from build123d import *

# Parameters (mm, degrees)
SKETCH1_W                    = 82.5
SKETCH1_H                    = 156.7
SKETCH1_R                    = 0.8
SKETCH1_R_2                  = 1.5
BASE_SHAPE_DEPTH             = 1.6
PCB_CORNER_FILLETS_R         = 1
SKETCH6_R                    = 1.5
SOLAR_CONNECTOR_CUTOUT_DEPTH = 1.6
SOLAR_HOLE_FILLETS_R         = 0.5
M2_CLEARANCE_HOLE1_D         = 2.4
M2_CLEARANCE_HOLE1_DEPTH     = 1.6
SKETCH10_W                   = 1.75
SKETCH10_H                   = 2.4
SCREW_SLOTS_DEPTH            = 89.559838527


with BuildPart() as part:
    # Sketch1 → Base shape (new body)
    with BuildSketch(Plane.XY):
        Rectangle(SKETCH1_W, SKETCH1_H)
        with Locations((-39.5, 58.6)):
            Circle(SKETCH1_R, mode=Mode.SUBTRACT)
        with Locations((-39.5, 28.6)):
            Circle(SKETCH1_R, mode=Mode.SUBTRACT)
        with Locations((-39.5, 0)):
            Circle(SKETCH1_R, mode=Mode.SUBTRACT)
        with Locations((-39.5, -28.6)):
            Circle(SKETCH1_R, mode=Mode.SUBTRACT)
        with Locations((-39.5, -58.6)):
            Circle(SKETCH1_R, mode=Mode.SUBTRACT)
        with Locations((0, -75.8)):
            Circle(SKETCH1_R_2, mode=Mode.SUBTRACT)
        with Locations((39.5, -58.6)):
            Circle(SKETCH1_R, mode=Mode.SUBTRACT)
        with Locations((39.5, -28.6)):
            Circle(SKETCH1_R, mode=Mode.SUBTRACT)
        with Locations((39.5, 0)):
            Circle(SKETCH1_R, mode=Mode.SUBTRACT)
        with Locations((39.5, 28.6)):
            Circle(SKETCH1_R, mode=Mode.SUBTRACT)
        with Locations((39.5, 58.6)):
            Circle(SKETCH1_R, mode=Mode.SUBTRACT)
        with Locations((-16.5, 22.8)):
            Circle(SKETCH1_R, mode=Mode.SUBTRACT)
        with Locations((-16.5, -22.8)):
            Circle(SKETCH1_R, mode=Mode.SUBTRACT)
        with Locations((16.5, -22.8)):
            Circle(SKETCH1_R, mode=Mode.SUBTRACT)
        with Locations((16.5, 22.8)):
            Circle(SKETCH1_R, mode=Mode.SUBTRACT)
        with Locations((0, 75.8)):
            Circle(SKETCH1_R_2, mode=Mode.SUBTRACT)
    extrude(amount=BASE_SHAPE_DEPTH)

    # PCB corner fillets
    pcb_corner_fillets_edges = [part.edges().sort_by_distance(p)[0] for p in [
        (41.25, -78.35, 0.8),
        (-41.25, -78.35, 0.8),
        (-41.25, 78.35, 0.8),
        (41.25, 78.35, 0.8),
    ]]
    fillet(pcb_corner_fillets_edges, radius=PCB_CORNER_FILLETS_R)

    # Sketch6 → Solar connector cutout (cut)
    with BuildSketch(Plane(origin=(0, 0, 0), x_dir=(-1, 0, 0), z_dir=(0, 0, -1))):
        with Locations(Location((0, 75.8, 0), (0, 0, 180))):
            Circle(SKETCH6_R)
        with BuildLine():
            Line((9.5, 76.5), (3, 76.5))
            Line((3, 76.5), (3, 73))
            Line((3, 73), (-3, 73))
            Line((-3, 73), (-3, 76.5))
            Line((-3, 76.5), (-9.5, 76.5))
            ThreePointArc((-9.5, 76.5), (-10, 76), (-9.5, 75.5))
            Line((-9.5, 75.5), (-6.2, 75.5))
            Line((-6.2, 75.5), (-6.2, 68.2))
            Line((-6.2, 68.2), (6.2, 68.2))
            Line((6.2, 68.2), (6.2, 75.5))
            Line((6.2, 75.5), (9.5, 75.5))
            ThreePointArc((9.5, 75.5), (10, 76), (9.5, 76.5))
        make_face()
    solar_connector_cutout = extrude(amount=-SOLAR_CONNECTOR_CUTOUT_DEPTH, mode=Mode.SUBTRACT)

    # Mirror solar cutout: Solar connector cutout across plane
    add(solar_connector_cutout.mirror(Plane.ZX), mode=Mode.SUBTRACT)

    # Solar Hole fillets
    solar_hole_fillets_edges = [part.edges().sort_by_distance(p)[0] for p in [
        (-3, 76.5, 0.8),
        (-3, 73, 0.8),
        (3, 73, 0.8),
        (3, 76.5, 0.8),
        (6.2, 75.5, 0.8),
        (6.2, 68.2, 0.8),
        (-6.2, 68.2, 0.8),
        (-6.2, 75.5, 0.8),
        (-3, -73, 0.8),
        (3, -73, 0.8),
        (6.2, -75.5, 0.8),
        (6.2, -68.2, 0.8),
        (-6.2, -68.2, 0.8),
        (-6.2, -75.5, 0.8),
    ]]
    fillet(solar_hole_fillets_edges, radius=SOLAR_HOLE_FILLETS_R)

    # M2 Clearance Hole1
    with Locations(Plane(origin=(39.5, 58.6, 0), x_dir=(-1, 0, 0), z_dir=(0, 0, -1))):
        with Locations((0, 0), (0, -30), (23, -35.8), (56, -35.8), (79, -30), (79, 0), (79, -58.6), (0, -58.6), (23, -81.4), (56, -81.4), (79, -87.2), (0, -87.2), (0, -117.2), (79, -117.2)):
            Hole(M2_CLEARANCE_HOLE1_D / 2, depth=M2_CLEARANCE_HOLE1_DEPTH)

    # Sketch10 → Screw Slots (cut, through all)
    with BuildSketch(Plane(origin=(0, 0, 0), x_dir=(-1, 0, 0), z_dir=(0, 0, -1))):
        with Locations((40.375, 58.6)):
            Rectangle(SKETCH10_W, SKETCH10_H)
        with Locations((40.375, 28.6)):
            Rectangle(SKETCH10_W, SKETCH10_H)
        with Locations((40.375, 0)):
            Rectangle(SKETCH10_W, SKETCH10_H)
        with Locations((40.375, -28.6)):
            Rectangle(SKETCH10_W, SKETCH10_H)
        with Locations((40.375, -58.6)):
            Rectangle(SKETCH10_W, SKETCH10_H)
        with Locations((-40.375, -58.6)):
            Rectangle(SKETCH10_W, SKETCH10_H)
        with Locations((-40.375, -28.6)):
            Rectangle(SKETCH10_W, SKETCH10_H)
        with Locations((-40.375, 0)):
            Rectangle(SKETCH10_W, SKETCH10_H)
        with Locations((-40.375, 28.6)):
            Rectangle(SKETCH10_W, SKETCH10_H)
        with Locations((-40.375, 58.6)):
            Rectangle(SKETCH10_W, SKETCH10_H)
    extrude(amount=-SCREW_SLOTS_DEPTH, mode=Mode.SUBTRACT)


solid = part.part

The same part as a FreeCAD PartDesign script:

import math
import FreeCAD as App
import Part
import Sketcher

V = App.Vector


def edges_at(feature, points):
    """Names of the edges that pass closest to the given points."""
    edges = feature.Shape.Edges
    near = lambda p: min(range(len(edges)), key=lambda i: edges[i].distToShape(Part.Vertex(*p))[0])
    return sorted({f"Edge{near(p) + 1}" for p in points})


def add_polygon(sketch, points):
    """Adds a closed chain of lines whose ends are joined by coincident constraints."""
    first, n = sketch.GeometryCount, len(points)
    for a, b in zip(points, points[1:] + points[:1]):
        sketch.addGeometry(Part.LineSegment(App.Vector(*a, 0), App.Vector(*b, 0)), False)
    for i in range(n):
        sketch.addConstraint(Sketcher.Constraint("Coincident", first + i, 2, first + (i + 1) % n, 1))

doc = App.newDocument("Part")
body = doc.addObject("PartDesign::Body", "Body")

# Sketch on XY plane
sketch1 = body.newObject("Sketcher::SketchObject", "Sketch")
sketch1.AttachmentSupport = (doc.getObject("XY_Plane"), [""])
sketch1.MapMode = "FlatFace"
add_polygon(sketch1, [(-41.2, 78.3), (-41.2, -78.3), (41.2, -78.3), (41.2, 78.3)])  # lines 0-3
sketch1.addGeometry(Part.Circle(V(-39.5, -58.6, 0), V(0, 0, 1), 0.8), False)  # 4
sketch1.addGeometry(Part.Circle(V(-39.5, -28.6, 0), V(0, 0, 1), 0.8), False)  # 5
sketch1.addGeometry(Part.Circle(V(-16.5, -22.8, 0), V(0, 0, 1), 0.8), False)  # 6
sketch1.addGeometry(Part.Circle(V(0, -75.8, 0), V(0, 0, 1), 1.5), False)  # 7
sketch1.addGeometry(Part.Circle(V(39.5, -58.6, 0), V(0, 0, 1), 0.8), False)  # 8
sketch1.addGeometry(Part.Circle(V(16.5, -22.8, 0), V(0, 0, 1), 0.8), False)  # 9
sketch1.addGeometry(Part.Circle(V(39.5, -28.6, 0), V(0, 0, 1), 0.8), False)  # 10
sketch1.addGeometry(Part.Circle(V(-39.5, 0, 0), V(0, 0, 1), 0.8), False)  # 11
sketch1.addGeometry(Part.Circle(V(-39.5, 28.6, 0), V(0, 0, 1), 0.8), False)  # 12
sketch1.addGeometry(Part.Circle(V(-16.5, 22.8, 0), V(0, 0, 1), 0.8), False)  # 13
sketch1.addGeometry(Part.Circle(V(-39.5, 58.6, 0), V(0, 0, 1), 0.8), False)  # 14
sketch1.addGeometry(Part.Circle(V(16.5, 22.8, 0), V(0, 0, 1), 0.8), False)  # 15
sketch1.addGeometry(Part.Circle(V(39.5, 0, 0), V(0, 0, 1), 0.8), False)  # 16
sketch1.addGeometry(Part.Circle(V(39.5, 28.6, 0), V(0, 0, 1), 0.8), False)  # 17
sketch1.addGeometry(Part.Circle(V(0, 75.8, 0), V(0, 0, 1), 1.5), False)  # 18
sketch1.addGeometry(Part.Circle(V(39.5, 58.6, 0), V(0, 0, 1), 0.8), False)  # 19
sketch1.addConstraint([
    Sketcher.Constraint("Vertical", 0),
    Sketcher.Constraint("Horizontal", 1),
    Sketcher.Constraint("Vertical", 2),
    Sketcher.Constraint("Horizontal", 3),
    Sketcher.Constraint("Equal", 4, 5),
    Sketcher.Constraint("Equal", 5, 6),
    Sketcher.Constraint("Equal", 6, 8),
    Sketcher.Constraint("Equal", 8, 9),
    Sketcher.Constraint("Equal", 9, 10),
    Sketcher.Constraint("Equal", 10, 11),
    Sketcher.Constraint("Equal", 11, 12),
    Sketcher.Constraint("Equal", 12, 13),
    Sketcher.Constraint("Equal", 13, 14),
    Sketcher.Constraint("Equal", 14, 15),
    Sketcher.Constraint("Equal", 15, 16),
    Sketcher.Constraint("Equal", 16, 17),
    Sketcher.Constraint("Equal", 7, 18),
    Sketcher.Constraint("Equal", 17, 19),
    Sketcher.Constraint("Symmetric", 10, 3, 12, 3, -1, 1),
    Sketcher.Constraint("Symmetric", 9, 3, 13, 3, -1, 1),
    Sketcher.Constraint("Symmetric", 8, 3, 14, 3, -1, 1),
    Sketcher.Constraint("Symmetric", 6, 3, 15, 3, -1, 1),
    Sketcher.Constraint("Symmetric", 11, 3, 16, 3, -1, 1),
    Sketcher.Constraint("Symmetric", 5, 3, 17, 3, -1, 1),
    Sketcher.Constraint("Symmetric", 7, 3, 18, 3, -1, 1),
    Sketcher.Constraint("Symmetric", 4, 3, 19, 3, -1, 1),
    Sketcher.Constraint("Symmetric", 0, 2, 2, 2, -1, 1),
    Sketcher.Constraint("Symmetric", 4, 3, 8, 3, -2),
    Sketcher.Constraint("Symmetric", 6, 3, 9, 3, -2),
    Sketcher.Constraint("Symmetric", 5, 3, 10, 3, -2),
    Sketcher.Constraint("PointOnObject", 7, 3, -2),
    Sketcher.Constraint("PointOnObject", 11, 3, -1),
    Sketcher.Constraint("Vertical", 4, 3, 5, 3),
    Sketcher.Constraint("Vertical", 5, 3, 11, 3),
    Sketcher.Constraint("Diameter", 7, 3.0),
    Sketcher.Constraint("Diameter", 4, 1.6),
    Sketcher.Constraint("DistanceX", 1, 1, 1, 2, 82.5),
    Sketcher.Constraint("DistanceY", 0, 2, 0, 1, 156.7),
    Sketcher.Constraint("DistanceY", 4, 3, 5, 3, 30.0),
    Sketcher.Constraint("DistanceX", 5, 3, 6, 3, 23.0),
    Sketcher.Constraint("DistanceY", 7, 3, 6, 3, 53.0),
    Sketcher.Constraint("DistanceX", 6, 3, 8, 3, 56.0),
    Sketcher.Constraint("DistanceY", 4, 3, -1, 1, 58.6),
    Sketcher.Constraint("DistanceY", 6, 3, -1, 1, 22.8),
])
pad1 = body.newObject("PartDesign::Pad", "Pad")
pad1.Profile = sketch1
pad1.Length = 1.6
doc.recompute()

fillet = body.newObject("PartDesign::Fillet", "Fillet")
fillet.Base = (pad1, edges_at(pad1, [
    (41.25, -78.35, 0.8),
    (-41.25, -78.35, 0.8),
    (-41.25, 78.35, 0.8),
    (41.25, 78.35, 0.8),
]))
fillet.Radius = 1

# Sketch on XY plane
sketch2 = body.newObject("Sketcher::SketchObject", "Sketch001")
sketch2.AttachmentSupport = (doc.getObject("XY_Plane"), [""])
sketch2.MapMode = "FlatFace"
sketch2.addGeometry([
    Part.Circle(V(0, 75.8, 0), V(0, 0, 1), 1.5),  # 0
    Part.LineSegment(V(-9.5, 76.5, 0), V(-3, 76.5, 0)),  # 1
    Part.LineSegment(V(-3, 76.5, 0), V(-3, 73, 0)),  # 2
    Part.LineSegment(V(-3, 73, 0), V(3, 73, 0)),  # 3
    Part.LineSegment(V(3, 73, 0), V(3, 76.5, 0)),  # 4
    Part.LineSegment(V(3, 76.5, 0), V(9.5, 76.5, 0)),  # 5
    Part.ArcOfCircle(Part.Circle(V(9.5, 76, 0), V(0, 0, 1), 0.5), math.radians(-90), math.radians(90)),  # 6
    Part.LineSegment(V(9.5, 75.5, 0), V(6.2, 75.5, 0)),  # 7
    Part.LineSegment(V(6.2, 75.5, 0), V(6.2, 68.2, 0)),  # 8
    Part.LineSegment(V(6.2, 68.2, 0), V(-6.2, 68.2, 0)),  # 9
    Part.LineSegment(V(-6.2, 68.2, 0), V(-6.2, 75.5, 0)),  # 10
    Part.LineSegment(V(-6.2, 75.5, 0), V(-9.5, 75.5, 0)),  # 11
    Part.ArcOfCircle(Part.Circle(V(-9.5, 76, 0), V(0, 0, 1), 0.5), math.radians(90), math.radians(270)),  # 12
], False)
sketch2.addConstraint([
    Sketcher.Constraint("Coincident", 1, 2, 2, 1),
    Sketcher.Constraint("Coincident", 2, 2, 3, 1),
    Sketcher.Constraint("Coincident", 3, 2, 4, 1),
    Sketcher.Constraint("Coincident", 4, 2, 5, 1),
    Sketcher.Constraint("Tangent", 5, 2, 6, 2),
    Sketcher.Constraint("Tangent", 6, 1, 7, 1),
    Sketcher.Constraint("Coincident", 7, 2, 8, 1),
    Sketcher.Constraint("Coincident", 8, 2, 9, 1),
    Sketcher.Constraint("Coincident", 9, 2, 10, 1),
    Sketcher.Constraint("Coincident", 10, 2, 11, 1),
    Sketcher.Constraint("Tangent", 11, 2, 12, 2),
    Sketcher.Constraint("Tangent", 12, 1, 1, 1),
    Sketcher.Constraint("Horizontal", 1),
    Sketcher.Constraint("Vertical", 2),
    Sketcher.Constraint("Horizontal", 3),
    Sketcher.Constraint("Vertical", 4),
    Sketcher.Constraint("Horizontal", 5),
    Sketcher.Constraint("Horizontal", 7),
    Sketcher.Constraint("Vertical", 8),
    Sketcher.Constraint("Horizontal", 9),
    Sketcher.Constraint("Vertical", 10),
    Sketcher.Constraint("Horizontal", 11),
    Sketcher.Constraint("Equal", 6, 12),
    Sketcher.Constraint("Symmetric", 6, 3, 12, 3, -2),
    Sketcher.Constraint("PointOnObject", 0, 3, -2),
    Sketcher.Constraint("Equal", 1, 5),
    Sketcher.Constraint("Equal", 7, 11),
    Sketcher.Constraint("Diameter", 0, 3.0),
    Sketcher.Constraint("Radius", 6, 0.5),
    Sketcher.Constraint("DistanceX", 3, 1, 3, 2, 6.0),
    Sketcher.Constraint("DistanceX", 1, 1, 1, 2, 6.5),
    Sketcher.Constraint("DistanceX", 7, 2, 7, 1, 3.3),
    Sketcher.Constraint("DistanceY", 2, 2, 2, 1, 3.5),
    Sketcher.Constraint("DistanceY", 8, 2, 8, 1, 7.3),
    Sketcher.Constraint("DistanceY", -1, 1, 6, 3, 76.0),
    Sketcher.Constraint("DistanceY", -1, 1, 0, 3, 75.8),
])
pocket1 = body.newObject("PartDesign::Pocket", "Pocket")
pocket1.Profile = sketch2
pocket1.Length = 1.6
pocket1.Reversed = True
doc.recompute()

mirrored = body.newObject("PartDesign::Mirrored", "Mirrored")
mirrored.Originals = [pocket1]
mirrored.MirrorPlane = (doc.getObject("XZ_Plane"), [""])
body.Tip = mirrored
doc.recompute()

fillet2 = body.newObject("PartDesign::Fillet", "Fillet001")
fillet2.Base = (mirrored, edges_at(mirrored, [
    (-3, 76.5, 0.8),
    (-3, 73, 0.8),
    (3, 73, 0.8),
    (3, 76.5, 0.8),
    (6.2, 75.5, 0.8),
    (6.2, 68.2, 0.8),
    (-6.2, 68.2, 0.8),
    (-6.2, 75.5, 0.8),
    (-3, -73, 0.8),
    (3, -73, 0.8),
    (6.2, -75.5, 0.8),
    (6.2, -68.2, 0.8),
    (-6.2, -68.2, 0.8),
    (-6.2, -75.5, 0.8),
]))
fillet2.Radius = 0.5

# Sketch on XY plane
sketch3 = body.newObject("Sketcher::SketchObject", "Sketch002")
sketch3.AttachmentSupport = (doc.getObject("XY_Plane"), [""])
sketch3.MapMode = "FlatFace"
sketch3.addGeometry([
    Part.Circle(V(39.5, 58.6, 0), V(0, 0, 1), 1.2),  # 0
    Part.Circle(V(39.5, 28.6, 0), V(0, 0, 1), 1.2),  # 1
    Part.Circle(V(16.5, 22.8, 0), V(0, 0, 1), 1.2),  # 2
    Part.Circle(V(-16.5, 22.8, 0), V(0, 0, 1), 1.2),  # 3
    Part.Circle(V(-39.5, 28.6, 0), V(0, 0, 1), 1.2),  # 4
    Part.Circle(V(-39.5, 58.6, 0), V(0, 0, 1), 1.2),  # 5
    Part.Circle(V(-39.5, 0, 0), V(0, 0, 1), 1.2),  # 6
    Part.Circle(V(39.5, 0, 0), V(0, 0, 1), 1.2),  # 7
    Part.Circle(V(16.5, -22.8, 0), V(0, 0, 1), 1.2),  # 8
    Part.Circle(V(-16.5, -22.8, 0), V(0, 0, 1), 1.2),  # 9
    Part.Circle(V(-39.5, -28.6, 0), V(0, 0, 1), 1.2),  # 10
    Part.Circle(V(39.5, -28.6, 0), V(0, 0, 1), 1.2),  # 11
    Part.Circle(V(39.5, -58.6, 0), V(0, 0, 1), 1.2),  # 12
    Part.Circle(V(-39.5, -58.6, 0), V(0, 0, 1), 1.2),  # 13
], False)
sketch3.addConstraint([
    Sketcher.Constraint("Equal", 0, 1),
    Sketcher.Constraint("Equal", 1, 2),
    Sketcher.Constraint("Equal", 2, 3),
    Sketcher.Constraint("Equal", 3, 4),
    Sketcher.Constraint("Equal", 4, 5),
    Sketcher.Constraint("Equal", 5, 6),
    Sketcher.Constraint("Equal", 6, 7),
    Sketcher.Constraint("Equal", 7, 8),
    Sketcher.Constraint("Equal", 8, 9),
    Sketcher.Constraint("Equal", 9, 10),
    Sketcher.Constraint("Equal", 10, 11),
    Sketcher.Constraint("Equal", 11, 12),
    Sketcher.Constraint("Equal", 12, 13),
    Sketcher.Constraint("Symmetric", 6, 3, 7, 3, -1, 1),
    Sketcher.Constraint("Symmetric", 3, 3, 8, 3, -1, 1),
    Sketcher.Constraint("Symmetric", 2, 3, 9, 3, -1, 1),
    Sketcher.Constraint("Symmetric", 1, 3, 10, 3, -1, 1),
    Sketcher.Constraint("Symmetric", 4, 3, 11, 3, -1, 1),
    Sketcher.Constraint("Symmetric", 5, 3, 12, 3, -1, 1),
    Sketcher.Constraint("Symmetric", 0, 3, 13, 3, -1, 1),
    Sketcher.Constraint("Symmetric", 2, 3, 3, 3, -2),
    Sketcher.Constraint("Symmetric", 1, 3, 4, 3, -2),
    Sketcher.Constraint("Symmetric", 0, 3, 5, 3, -2),
    Sketcher.Constraint("PointOnObject", 6, 3, -1),
    Sketcher.Constraint("Vertical", 0, 3, 1, 3),
    Sketcher.Constraint("Vertical", 5, 3, 6, 3),
    Sketcher.Constraint("Diameter", 0, 2.4),
    Sketcher.Constraint("DistanceY", 1, 3, 0, 3, 30.0),
    Sketcher.Constraint("DistanceX", 2, 3, 1, 3, 23.0),
    Sketcher.Constraint("DistanceX", 3, 3, 2, 3, 33.0),
    Sketcher.Constraint("DistanceY", -1, 1, 0, 3, 58.6),
    Sketcher.Constraint("DistanceY", -1, 1, 2, 3, 22.8),
])
doc.recompute()
hole = body.newObject("PartDesign::Hole", "Hole")
hole.Profile = sketch3
hole.ThreadType = "None"
hole.Diameter = 2.4
hole.DepthType = "Dimension"
hole.Depth = 1.6
hole.DrillPoint = "Flat"
hole.Reversed = True

# Sketch on XY plane
sketch4 = body.newObject("Sketcher::SketchObject", "Sketch003")
sketch4.AttachmentSupport = (doc.getObject("XY_Plane"), [""])
sketch4.MapMode = "FlatFace"
add_polygon(sketch4, [(-39.5, 59.8), (-39.5, 57.4), (-41.2, 57.4), (-41.2, 59.8)])  # lines 0-3
add_polygon(sketch4, [(-39.5, 29.8), (-39.5, 27.4), (-41.2, 27.4), (-41.2, 29.8)])  # lines 4-7
add_polygon(sketch4, [(-39.5, 1.2), (-39.5, -1.2), (-41.2, -1.2), (-41.2, 1.2)])  # lines 8-11
add_polygon(sketch4, [(-39.5, -27.4), (-39.5, -29.8), (-41.2, -29.8), (-41.2, -27.4)])  # lines 12-15
add_polygon(sketch4, [(-39.5, -57.4), (-39.5, -59.8), (-41.2, -59.8), (-41.2, -57.4)])  # lines 16-19
add_polygon(sketch4, [(41.2, -57.4), (41.2, -59.8), (39.5, -59.8), (39.5, -57.4)])  # lines 20-23
add_polygon(sketch4, [(41.2, -27.4), (41.2, -29.8), (39.5, -29.8), (39.5, -27.4)])  # lines 24-27
add_polygon(sketch4, [(41.2, 1.2), (41.2, -1.2), (39.5, -1.2), (39.5, 1.2)])  # lines 28-31
add_polygon(sketch4, [(41.2, 29.8), (41.2, 27.4), (39.5, 27.4), (39.5, 29.8)])  # lines 32-35
add_polygon(sketch4, [(41.2, 59.8), (41.2, 57.4), (39.5, 57.4), (39.5, 59.8)])  # lines 36-39
sketch4.addConstraint([
    Sketcher.Constraint("Vertical", 0),
    Sketcher.Constraint("Horizontal", 1),
    Sketcher.Constraint("Vertical", 2),
    Sketcher.Constraint("Horizontal", 3),
    Sketcher.Constraint("Vertical", 4),
    Sketcher.Constraint("Horizontal", 5),
    Sketcher.Constraint("Vertical", 6),
    Sketcher.Constraint("Horizontal", 7),
    Sketcher.Constraint("Vertical", 8),
    Sketcher.Constraint("Horizontal", 9),
    Sketcher.Constraint("Vertical", 10),
    Sketcher.Constraint("Horizontal", 11),
    Sketcher.Constraint("Vertical", 12),
    Sketcher.Constraint("Horizontal", 13),
    Sketcher.Constraint("Vertical", 14),
    Sketcher.Constraint("Horizontal", 15),
    Sketcher.Constraint("Vertical", 16),
    Sketcher.Constraint("Horizontal", 17),
    Sketcher.Constraint("Vertical", 18),
    Sketcher.Constraint("Horizontal", 19),
    Sketcher.Constraint("Vertical", 20),
    Sketcher.Constraint("Horizontal", 21),
    Sketcher.Constraint("Vertical", 22),
    Sketcher.Constraint("Horizontal", 23),
    Sketcher.Constraint("Vertical", 24),
    Sketcher.Constraint("Horizontal", 25),
    Sketcher.Constraint("Vertical", 26),
    Sketcher.Constraint("Horizontal", 27),
    Sketcher.Constraint("Vertical", 28),
    Sketcher.Constraint("Horizontal", 29),
    Sketcher.Constraint("Vertical", 30),
    Sketcher.Constraint("Horizontal", 31),
    Sketcher.Constraint("Vertical", 32),
    Sketcher.Constraint("Horizontal", 33),
    Sketcher.Constraint("Vertical", 34),
    Sketcher.Constraint("Horizontal", 35),
    Sketcher.Constraint("Vertical", 36),
    Sketcher.Constraint("Horizontal", 37),
    Sketcher.Constraint("Vertical", 38),
    Sketcher.Constraint("Horizontal", 39),
    Sketcher.Constraint("Symmetric", 2, 2, 20, 2, -1, 1),
    Sketcher.Constraint("Symmetric", 0, 2, 22, 2, -1, 1),
    Sketcher.Constraint("Symmetric", 6, 2, 24, 2, -1, 1),
    Sketcher.Constraint("Symmetric", 4, 2, 26, 2, -1, 1),
    Sketcher.Constraint("Symmetric", 10, 2, 28, 2, -1, 1),
    Sketcher.Constraint("Symmetric", 8, 2, 30, 2, -1, 1),
    Sketcher.Constraint("Symmetric", 14, 2, 32, 2, -1, 1),
    Sketcher.Constraint("Symmetric", 12, 2, 34, 2, -1, 1),
    Sketcher.Constraint("Symmetric", 18, 2, 36, 2, -1, 1),
    Sketcher.Constraint("Symmetric", 16, 2, 38, 2, -1, 1),
    Sketcher.Constraint("Symmetric", 17, 2, 20, 2, -2),
    Sketcher.Constraint("Symmetric", 19, 2, 22, 2, -2),
    Sketcher.Constraint("Symmetric", 13, 2, 24, 2, -2),
    Sketcher.Constraint("Symmetric", 15, 2, 26, 2, -2),
    Sketcher.Constraint("Horizontal", 9, 2, 28, 2),
    Sketcher.Constraint("Vertical", 3, 2, 4, 2),
    Sketcher.Constraint("Vertical", 2, 2, 5, 2),
    Sketcher.Constraint("Vertical", 7, 2, 8, 2),
    Sketcher.Constraint("Vertical", 6, 2, 9, 2),
    Sketcher.Constraint("Equal", 2, 4),
    Sketcher.Constraint("Equal", 6, 8),
    Sketcher.Constraint("DistanceY", 0, 2, 0, 1, 2.4),
    Sketcher.Constraint("DistanceY", 4, 2, 0, 2, 30.0),
    Sketcher.Constraint("DistanceY", 8, 2, 7, 2, 31.0),
    Sketcher.Constraint("DistanceX", 16, 2, 21, 2, 79.0),
    Sketcher.Constraint("DistanceX", 1, 2, 1, 1, 1.75),
])
pocket2 = body.newObject("PartDesign::Pocket", "Pocket001")
pocket2.Profile = sketch4
pocket2.Type = "ThroughAll"
pocket2.Reversed = True

doc.recompute()
